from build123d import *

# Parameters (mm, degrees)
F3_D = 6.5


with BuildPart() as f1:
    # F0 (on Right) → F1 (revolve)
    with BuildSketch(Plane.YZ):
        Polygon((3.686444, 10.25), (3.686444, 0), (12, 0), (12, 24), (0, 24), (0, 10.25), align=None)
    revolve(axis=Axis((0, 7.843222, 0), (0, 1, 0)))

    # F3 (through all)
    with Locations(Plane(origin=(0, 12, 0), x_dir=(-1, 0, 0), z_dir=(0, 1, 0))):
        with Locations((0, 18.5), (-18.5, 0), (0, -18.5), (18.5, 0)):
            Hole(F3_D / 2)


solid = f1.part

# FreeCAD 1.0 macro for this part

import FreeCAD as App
import Part
import Sketcher

V = App.Vector

doc = App.newDocument("Part")
body = doc.addObject("PartDesign::Body", "Body")

sketch1 = body.newObject("Sketcher::SketchObject", "Sketch")
sketch1.AttachmentSupport = (doc.getObject("YZ_Plane"), [""])
sketch1.MapMode = "FlatFace"
sketch1.addGeometry([
    Part.LineSegment(V(3.686444, 10.25, 0), V(3.686444, 0, 0)),
    Part.LineSegment(V(3.686444, 0, 0), V(12, 0, 0)),
    Part.LineSegment(V(12, 0, 0), V(12, 24, 0)),
    Part.LineSegment(V(12, 24, 0), V(0, 24, 0)),
    Part.LineSegment(V(0, 24, 0), V(0, 10.25, 0)),
    Part.LineSegment(V(0, 10.25, 0), V(3.686444, 10.25, 0)),
], False)
sketch1.addConstraint([
    Sketcher.Constraint("Coincident", 0, 2, 1, 1),
    Sketcher.Constraint("Coincident", 1, 2, 2, 1),
    Sketcher.Constraint("Coincident", 2, 2, 3, 1),
    Sketcher.Constraint("Coincident", 3, 2, 4, 1),
    Sketcher.Constraint("Coincident", 4, 2, 5, 1),
    Sketcher.Constraint("Coincident", 5, 2, 0, 1),
    Sketcher.Constraint("Vertical", 0),
    Sketcher.Constraint("Horizontal", 1),
    Sketcher.Constraint("Vertical", 2),
    Sketcher.Constraint("Horizontal", 3),
    Sketcher.Constraint("Vertical", 4),
    Sketcher.Constraint("Horizontal", 5),
    Sketcher.Constraint("PointOnObject", 0, 2, -1),
    Sketcher.Constraint("PointOnObject", 3, 2, -2),
    Sketcher.Constraint("DistanceX", 3, 2, 3, 1, 12.0),
    Sketcher.Constraint("DistanceY", 2, 1, 2, 2, 24.0),
    Sketcher.Constraint("DistanceY", 0, 2, 0, 1, 10.25),
    Sketcher.Constraint("DistanceX", 1, 1, 1, 2, 8.313556),
])
revolution = body.newObject("PartDesign::Revolution", "Revolution")
revolution.Profile = sketch1
revolution.ReferenceAxis = (sketch1, ["H_Axis"])
revolution.Angle = 360

sketch2 = body.newObject("Sketcher::SketchObject", "Sketch001")
sketch2.AttachmentSupport = (doc.getObject("XZ_Plane"), [""])
sketch2.MapMode = "FlatFace"
sketch2.AttachmentOffset = App.Placement(V(0, 0, -12), App.Rotation())
sketch2.addGeometry([
    Part.Circle(V(0, 18.5, 0), V(0, 0, 1), 3.25),
    Part.Circle(V(18.5, 0, 0), V(0, 0, 1), 3.25),
    Part.Circle(V(0, -18.5, 0), V(0, 0, 1), 3.25),
    Part.Circle(V(-18.5, 0, 0), V(0, 0, 1), 3.25),
], False)
sketch2.addConstraint([
    Sketcher.Constraint("Equal", 0, 1),
    Sketcher.Constraint("Equal", 1, 2),
    Sketcher.Constraint("Equal", 2, 3),
    Sketcher.Constraint("Symmetric", 0, 3, 2, 3, -1, 1),
    Sketcher.Constraint("Symmetric", 1, 3, 3, 3, -1, 1),
    Sketcher.Constraint("PointOnObject", 0, 3, -2),
    Sketcher.Constraint("PointOnObject", 1, 3, -1),
    Sketcher.Constraint("Diameter", 0, 6.5),
    Sketcher.Constraint("DistanceY", 2, 3, 0, 3, 37.0),
    Sketcher.Constraint("DistanceX", 3, 3, 1, 3, 37.0),
])
doc.recompute()
hole = body.newObject("PartDesign::Hole", "Hole")
hole.Profile = sketch2
hole.ThreadType = "None"
hole.Diameter = 6.5
hole.DepthType = "ThroughAll"
hole.Reversed = True

doc.recompute()
